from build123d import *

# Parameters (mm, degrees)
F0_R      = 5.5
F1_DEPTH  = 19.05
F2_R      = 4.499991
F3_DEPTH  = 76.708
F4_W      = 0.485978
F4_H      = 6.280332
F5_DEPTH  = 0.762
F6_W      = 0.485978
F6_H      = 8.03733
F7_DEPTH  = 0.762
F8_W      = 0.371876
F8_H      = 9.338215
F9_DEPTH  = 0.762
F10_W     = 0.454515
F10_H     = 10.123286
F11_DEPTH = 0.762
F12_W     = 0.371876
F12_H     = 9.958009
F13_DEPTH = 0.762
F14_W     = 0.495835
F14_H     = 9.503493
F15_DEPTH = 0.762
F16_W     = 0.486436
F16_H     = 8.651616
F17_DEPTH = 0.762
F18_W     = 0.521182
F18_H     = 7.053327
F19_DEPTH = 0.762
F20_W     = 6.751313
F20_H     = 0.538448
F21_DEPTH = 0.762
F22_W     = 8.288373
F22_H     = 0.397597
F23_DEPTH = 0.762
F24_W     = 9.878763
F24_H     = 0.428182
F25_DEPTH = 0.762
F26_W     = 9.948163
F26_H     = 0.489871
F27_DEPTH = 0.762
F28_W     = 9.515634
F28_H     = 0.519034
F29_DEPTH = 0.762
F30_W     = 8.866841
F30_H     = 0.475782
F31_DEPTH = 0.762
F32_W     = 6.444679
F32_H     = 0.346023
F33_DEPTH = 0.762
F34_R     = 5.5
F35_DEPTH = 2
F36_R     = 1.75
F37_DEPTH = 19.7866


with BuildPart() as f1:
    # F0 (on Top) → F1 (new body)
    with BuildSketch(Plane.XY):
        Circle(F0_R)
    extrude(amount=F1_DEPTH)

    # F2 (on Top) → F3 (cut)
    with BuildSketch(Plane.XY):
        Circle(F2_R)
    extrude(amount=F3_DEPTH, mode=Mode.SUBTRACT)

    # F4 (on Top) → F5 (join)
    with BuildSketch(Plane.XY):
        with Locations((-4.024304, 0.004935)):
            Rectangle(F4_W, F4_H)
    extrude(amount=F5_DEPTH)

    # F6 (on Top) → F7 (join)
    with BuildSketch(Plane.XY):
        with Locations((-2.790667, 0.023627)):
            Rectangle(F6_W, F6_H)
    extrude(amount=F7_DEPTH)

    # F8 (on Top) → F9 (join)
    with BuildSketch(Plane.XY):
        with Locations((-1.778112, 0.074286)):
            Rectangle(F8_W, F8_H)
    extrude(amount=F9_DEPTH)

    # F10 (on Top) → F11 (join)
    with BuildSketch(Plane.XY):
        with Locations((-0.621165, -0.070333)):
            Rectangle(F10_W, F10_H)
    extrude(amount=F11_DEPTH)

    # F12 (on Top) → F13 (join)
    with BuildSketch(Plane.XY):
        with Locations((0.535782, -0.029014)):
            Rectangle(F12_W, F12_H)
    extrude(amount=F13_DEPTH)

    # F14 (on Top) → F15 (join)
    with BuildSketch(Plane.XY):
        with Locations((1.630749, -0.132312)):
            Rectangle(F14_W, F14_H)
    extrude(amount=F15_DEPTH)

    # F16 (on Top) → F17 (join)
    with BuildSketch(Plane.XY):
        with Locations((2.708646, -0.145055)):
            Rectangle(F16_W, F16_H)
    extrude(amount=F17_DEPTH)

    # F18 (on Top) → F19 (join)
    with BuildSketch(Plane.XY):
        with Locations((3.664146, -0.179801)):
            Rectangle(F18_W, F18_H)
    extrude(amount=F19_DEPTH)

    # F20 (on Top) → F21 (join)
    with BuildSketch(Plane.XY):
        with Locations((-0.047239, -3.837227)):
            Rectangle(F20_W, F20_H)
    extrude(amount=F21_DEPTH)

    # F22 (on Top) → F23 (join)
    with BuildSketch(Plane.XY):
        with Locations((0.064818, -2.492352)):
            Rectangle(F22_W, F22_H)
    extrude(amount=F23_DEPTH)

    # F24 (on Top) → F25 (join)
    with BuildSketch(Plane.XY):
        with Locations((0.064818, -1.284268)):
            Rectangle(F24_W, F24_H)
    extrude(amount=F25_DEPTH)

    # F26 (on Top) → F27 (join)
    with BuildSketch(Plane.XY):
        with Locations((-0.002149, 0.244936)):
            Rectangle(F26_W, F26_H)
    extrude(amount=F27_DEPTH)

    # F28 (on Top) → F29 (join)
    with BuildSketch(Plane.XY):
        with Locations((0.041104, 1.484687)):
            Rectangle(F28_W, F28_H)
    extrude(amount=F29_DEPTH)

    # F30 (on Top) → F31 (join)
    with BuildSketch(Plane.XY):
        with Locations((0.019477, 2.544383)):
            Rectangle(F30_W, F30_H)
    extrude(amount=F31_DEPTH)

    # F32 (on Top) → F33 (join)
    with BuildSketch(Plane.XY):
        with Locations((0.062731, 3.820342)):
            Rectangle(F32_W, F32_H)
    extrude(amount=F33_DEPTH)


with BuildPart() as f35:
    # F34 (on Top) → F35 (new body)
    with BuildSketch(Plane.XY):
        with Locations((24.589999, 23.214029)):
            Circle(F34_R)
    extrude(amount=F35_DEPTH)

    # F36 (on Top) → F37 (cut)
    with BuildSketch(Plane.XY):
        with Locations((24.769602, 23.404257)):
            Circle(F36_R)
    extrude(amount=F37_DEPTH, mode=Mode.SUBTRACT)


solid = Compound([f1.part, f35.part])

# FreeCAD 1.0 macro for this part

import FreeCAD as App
import Part
import Sketcher
Q = App.Units.Quantity

doc = App.newDocument("Part")
body = doc.addObject("PartDesign::Body", "Body")

# Sketch on XY plane
sketch1 = body.newObject("Sketcher::SketchObject", "Sketch")
sketch1.AttachmentSupport = (doc.getObject("XY_Plane"), [""])
sketch1.MapMode = "FlatFace"
sketch1.addGeometry(Part.Circle(App.Vector(0, 0, 0), App.Vector(0, 0, 1), 6), False)
sketch1.addConstraint(Sketcher.Constraint("Coincident", 0, 3, -1, 1))
sketch1.addConstraint(Sketcher.Constraint("Diameter", 0, Q("11 mm")))
pad1 = body.newObject("PartDesign::Pad", "Pad")
pad1.Profile = sketch1
pad1.Length = Q("0.75 in")

# Sketch on XY plane
sketch2 = body.newObject("Sketcher::SketchObject", "Sketch001")
sketch2.AttachmentSupport = (doc.getObject("XY_Plane"), [""])
sketch2.MapMode = "FlatFace"
sketch2.addGeometry(Part.Circle(App.Vector(0, 0, 0), App.Vector(0, 0, 1), 4.5), False)
sketch2.addConstraint(Sketcher.Constraint("Coincident", 0, 3, -1, 1))
sketch2.addConstraint(Sketcher.Constraint("Diameter", 0, Q("8.999982 mm")))
pocket1 = body.newObject("PartDesign::Pocket", "Pocket")
pocket1.Profile = sketch2
pocket1.Length = Q("3.02 in")
pocket1.Reversed = True

# Sketch on XY plane
sketch3 = body.newObject("Sketcher::SketchObject", "Sketch002")
sketch3.AttachmentSupport = (doc.getObject("XY_Plane"), [""])
sketch3.MapMode = "FlatFace"
sketch3.addGeometry(Part.LineSegment(App.Vector(-4.27, 3.15, 0), App.Vector(-4.27, -3.14, 0)), False)
sketch3.addGeometry(Part.LineSegment(App.Vector(-4.27, -3.14, 0), App.Vector(-3.78, -3.14, 0)), False)
sketch3.addGeometry(Part.LineSegment(App.Vector(-3.78, -3.14, 0), App.Vector(-3.78, 3.15, 0)), False)
sketch3.addGeometry(Part.LineSegment(App.Vector(-3.78, 3.15, 0), App.Vector(-4.27, 3.15, 0)), False)
sketch3.addConstraint(Sketcher.Constraint("Coincident", 0, 2, 1, 1))
sketch3.addConstraint(Sketcher.Constraint("Coincident", 1, 2, 2, 1))
sketch3.addConstraint(Sketcher.Constraint("Coincident", 2, 2, 3, 1))
sketch3.addConstraint(Sketcher.Constraint("Coincident", 3, 2, 0, 1))
sketch3.addConstraint(Sketcher.Constraint("Vertical", 0))
sketch3.addConstraint(Sketcher.Constraint("Horizontal", 1))
sketch3.addConstraint(Sketcher.Constraint("Vertical", 2))
sketch3.addConstraint(Sketcher.Constraint("Horizontal", 3))
sketch3.addConstraint(Sketcher.Constraint("DistanceY", 0, 2, 0, 1, Q("6.280332 mm")))
sketch3.addConstraint(Sketcher.Constraint("DistanceY", -1, 1, 2, 2, Q("3.145101 mm")))
sketch3.addConstraint(Sketcher.Constraint("DistanceX", 1, 1, 1, 2, Q("0.485978 mm")))
sketch3.addConstraint(Sketcher.Constraint("DistanceX", 0, 2, -1, 1, Q("4.267293 mm")))
pad2 = body.newObject("PartDesign::Pad", "Pad001")
pad2.Profile = sketch3
pad2.Length = Q("0.03 in")

# Sketch on XY plane
sketch4 = body.newObject("Sketcher::SketchObject", "Sketch003")
sketch4.AttachmentSupport = (doc.getObject("XY_Plane"), [""])
sketch4.MapMode = "FlatFace"
sketch4.addGeometry(Part.LineSegment(App.Vector(-3.03, 4.04, 0), App.Vector(-3.03, -4, 0)), False)
sketch4.addGeometry(Part.LineSegment(App.Vector(-3.03, -4, 0), App.Vector(-2.55, -4, 0)), False)
sketch4.addGeometry(Part.LineSegment(App.Vector(-2.55, -4, 0), App.Vector(-2.55, 4.04, 0)), False)
sketch4.addGeometry(Part.LineSegment(App.Vector(-2.55, 4.04, 0), App.Vector(-3.03, 4.04, 0)), False)
sketch4.addConstraint(Sketcher.Constraint("Coincident", 0, 2, 1, 1))
sketch4.addConstraint(Sketcher.Constraint("Coincident", 1, 2, 2, 1))
sketch4.addConstraint(Sketcher.Constraint("Coincident", 2, 2, 3, 1))
sketch4.addConstraint(Sketcher.Constraint("Coincident", 3, 2, 0, 1))
sketch4.addConstraint(Sketcher.Constraint("Vertical", 0))
sketch4.addConstraint(Sketcher.Constraint("Horizontal", 1))
sketch4.addConstraint(Sketcher.Constraint("Vertical", 2))
sketch4.addConstraint(Sketcher.Constraint("Horizontal", 3))
sketch4.addConstraint(Sketcher.Constraint("DistanceX", 1, 1, 1, 2, Q("0.485978 mm")))
sketch4.addConstraint(Sketcher.Constraint("DistanceY", 0, 2, 0, 1, Q("8.03733 mm")))
sketch4.addConstraint(Sketcher.Constraint("DistanceY", 0, 2, -1, 1, Q("3.995038 mm")))
sketch4.addConstraint(Sketcher.Constraint("DistanceX", 0, 2, -1, 1, Q("3.033656 mm")))
pad3 = body.newObject("PartDesign::Pad", "Pad002")
pad3.Profile = sketch4
pad3.Length = Q("0.03 in")

# Sketch on XY plane
sketch5 = body.newObject("Sketcher::SketchObject", "Sketch004")
sketch5.AttachmentSupport = (doc.getObject("XY_Plane"), [""])
sketch5.MapMode = "FlatFace"
sketch5.addGeometry(Part.LineSegment(App.Vector(-1.96, 4.74, 0), App.Vector(-1.96, -4.59, 0)), False)
sketch5.addGeometry(Part.LineSegment(App.Vector(-1.96, -4.59, 0), App.Vector(-1.59, -4.59, 0)), False)
sketch5.addGeometry(Part.LineSegment(App.Vector(-1.59, -4.59, 0), App.Vector(-1.59, 4.74, 0)), False)
sketch5.addGeometry(Part.LineSegment(App.Vector(-1.59, 4.74, 0), App.Vector(-1.96, 4.74, 0)), False)
sketch5.addConstraint(Sketcher.Constraint("Coincident", 0, 2, 1, 1))
sketch5.addConstraint(Sketcher.Constraint("Coincident", 1, 2, 2, 1))
sketch5.addConstraint(Sketcher.Constraint("Coincident", 2, 2, 3, 1))
sketch5.addConstraint(Sketcher.Constraint("Coincident", 3, 2, 0, 1))
sketch5.addConstraint(Sketcher.Constraint("Vertical", 0))
sketch5.addConstraint(Sketcher.Constraint("Horizontal", 1))
sketch5.addConstraint(Sketcher.Constraint("Vertical", 2))
sketch5.addConstraint(Sketcher.Constraint("Horizontal", 3))
sketch5.addConstraint(Sketcher.Constraint("DistanceX", 1, 1, 1, 2, Q("0.371876 mm")))
sketch5.addConstraint(Sketcher.Constraint("DistanceY", 0, 2, 0, 1, Q("9.338215 mm")))
sketch5.addConstraint(Sketcher.Constraint("DistanceX", 0, 2, -1, 1, Q("1.96405 mm")))
sketch5.addConstraint(Sketcher.Constraint("DistanceY", 0, 2, -1, 1, Q("4.594822 mm")))
pad4 = body.newObject("PartDesign::Pad", "Pad003")
pad4.Profile = sketch5
pad4.Length = Q("0.03 in")

# Sketch on XY plane
sketch6 = body.newObject("Sketcher::SketchObject", "Sketch005")
sketch6.AttachmentSupport = (doc.getObject("XY_Plane"), [""])
sketch6.MapMode = "FlatFace"
sketch6.addGeometry(Part.LineSegment(App.Vector(-0.85, 4.99, 0), App.Vector(-0.85, -5.13, 0)), False)
sketch6.addGeometry(Part.LineSegment(App.Vector(-0.85, -5.13, 0), App.Vector(-0.39, -5.13, 0)), False)
sketch6.addGeometry(Part.LineSegment(App.Vector(-0.39, -5.13, 0), App.Vector(-0.39, 4.99, 0)), False)
sketch6.addGeometry(Part.LineSegment(App.Vector(-0.39, 4.99, 0), App.Vector(-0.85, 4.99, 0)), False)
sketch6.addConstraint(Sketcher.Constraint("Coincident", 0, 2, 1, 1))
sketch6.addConstraint(Sketcher.Constraint("Coincident", 1, 2, 2, 1))
sketch6.addConstraint(Sketcher.Constraint("Coincident", 2, 2, 3, 1))
sketch6.addConstraint(Sketcher.Constraint("Coincident", 3, 2, 0, 1))
sketch6.addConstraint(Sketcher.Constraint("Vertical", 0))
sketch6.addConstraint(Sketcher.Constraint("Horizontal", 1))
sketch6.addConstraint(Sketcher.Constraint("Vertical", 2))
sketch6.addConstraint(Sketcher.Constraint("Horizontal", 3))
sketch6.addConstraint(Sketcher.Constraint("DistanceX", 1, 1, 1, 2, Q("0.454515 mm")))
sketch6.addConstraint(Sketcher.Constraint("DistanceY", 0, 2, 0, 1, Q("10.123286 mm")))
sketch6.addConstraint(Sketcher.Constraint("DistanceY", -1, 1, 2, 2, Q("4.99131 mm")))
sketch6.addConstraint(Sketcher.Constraint("DistanceX", 0, 2, -1, 1, Q("0.848422 mm")))
pad5 = body.newObject("PartDesign::Pad", "Pad004")
pad5.Profile = sketch6
pad5.Length = Q("0.03 in")

# Sketch on XY plane
sketch7 = body.newObject("Sketcher::SketchObject", "Sketch006")
sketch7.AttachmentSupport = (doc.getObject("XY_Plane"), [""])
sketch7.MapMode = "FlatFace"
sketch7.addGeometry(Part.LineSegment(App.Vector(0.35, 4.95, 0), App.Vector(0.35, -5.01, 0)), False)
sketch7.addGeometry(Part.LineSegment(App.Vector(0.35, -5.01, 0), App.Vector(0.72, -5.01, 0)), False)
sketch7.addGeometry(Part.LineSegment(App.Vector(0.72, -5.01, 0), App.Vector(0.72, 4.95, 0)), False)
sketch7.addGeometry(Part.LineSegment(App.Vector(0.72, 4.95, 0), App.Vector(0.35, 4.95, 0)), False)
sketch7.addConstraint(Sketcher.Constraint("Coincident", 0, 2, 1, 1))
sketch7.addConstraint(Sketcher.Constraint("Coincident", 1, 2, 2, 1))
sketch7.addConstraint(Sketcher.Constraint("Coincident", 2, 2, 3, 1))
sketch7.addConstraint(Sketcher.Constraint("Coincident", 3, 2, 0, 1))
sketch7.addConstraint(Sketcher.Constraint("Vertical", 0))
sketch7.addConstraint(Sketcher.Constraint("Horizontal", 1))
sketch7.addConstraint(Sketcher.Constraint("Vertical", 2))
sketch7.addConstraint(Sketcher.Constraint("Horizontal", 3))
sketch7.addConstraint(Sketcher.Constraint("DistanceY", 0, 2, 0, 1, Q("9.958009 mm")))
sketch7.addConstraint(Sketcher.Constraint("DistanceX", 1, 1, 1, 2, Q("0.371876 mm")))
sketch7.addConstraint(Sketcher.Constraint("DistanceY", 0, 2, -1, 1, Q("5.008019 mm")))
sketch7.addConstraint(Sketcher.Constraint("DistanceX", -1, 1, 1, 2, Q("0.72172 mm")))
pad6 = body.newObject("PartDesign::Pad", "Pad005")
pad6.Profile = sketch7
pad6.Length = Q("0.03 in")

# Sketch on XY plane
sketch8 = body.newObject("Sketcher::SketchObject", "Sketch007")
sketch8.AttachmentSupport = (doc.getObject("XY_Plane"), [""])
sketch8.MapMode = "FlatFace"
sketch8.addGeometry(Part.LineSegment(App.Vector(1.38, 4.62, 0), App.Vector(1.38, -4.88, 0)), False)
sketch8.addGeometry(Part.LineSegment(App.Vector(1.38, -4.88, 0), App.Vector(1.88, -4.88, 0)), False)
sketch8.addGeometry(Part.LineSegment(App.Vector(1.88, -4.88, 0), App.Vector(1.88, 4.62, 0)), False)
sketch8.addGeometry(Part.LineSegment(App.Vector(1.88, 4.62, 0), App.Vector(1.38, 4.62, 0)), False)
sketch8.addConstraint(Sketcher.Constraint("Coincident", 0, 2, 1, 1))
sketch8.addConstraint(Sketcher.Constraint("Coincident", 1, 2, 2, 1))
sketch8.addConstraint(Sketcher.Constraint("Coincident", 2, 2, 3, 1))
sketch8.addConstraint(Sketcher.Constraint("Coincident", 3, 2, 0, 1))
sketch8.addConstraint(Sketcher.Constraint("Vertical", 0))
sketch8.addConstraint(Sketcher.Constraint("Horizontal", 1))
sketch8.addConstraint(Sketcher.Constraint("Vertical", 2))
sketch8.addConstraint(Sketcher.Constraint("Horizontal", 3))
sketch8.addConstraint(Sketcher.Constraint("DistanceX", 1, 1, 1, 2, Q("0.495835 mm")))
sketch8.addConstraint(Sketcher.Constraint("DistanceY", 0, 2, 0, 1, Q("9.503493 mm")))
sketch8.addConstraint(Sketcher.Constraint("DistanceX", -1, 1, 0, 2, Q("1.382831 mm")))
sketch8.addConstraint(Sketcher.Constraint("DistanceY", 0, 2, -1, 1, Q("4.884059 mm")))
pad7 = body.newObject("PartDesign::Pad", "Pad006")
pad7.Profile = sketch8
pad7.Length = Q("0.03 in")

# Sketch on XY plane
sketch9 = body.newObject("Sketcher::SketchObject", "Sketch008")
sketch9.AttachmentSupport = (doc.getObject("XY_Plane"), [""])
sketch9.MapMode = "FlatFace"
sketch9.addGeometry(Part.LineSegment(App.Vector(2.47, 4.18, 0), App.Vector(2.47, -4.47, 0)), False)
sketch9.addGeometry(Part.LineSegment(App.Vector(2.47, -4.47, 0), App.Vector(2.95, -4.47, 0)), False)
sketch9.addGeometry(Part.LineSegment(App.Vector(2.95, -4.47, 0), App.Vector(2.95, 4.18, 0)), False)
sketch9.addGeometry(Part.LineSegment(App.Vector(2.95, 4.18, 0), App.Vector(2.47, 4.18, 0)), False)
sketch9.addConstraint(Sketcher.Constraint("Coincident", 0, 2, 1, 1))
sketch9.addConstraint(Sketcher.Constraint("Coincident", 1, 2, 2, 1))
sketch9.addConstraint(Sketcher.Constraint("Coincident", 2, 2, 3, 1))
sketch9.addConstraint(Sketcher.Constraint("Coincident", 3, 2, 0, 1))
sketch9.addConstraint(Sketcher.Constraint("Vertical", 0))
sketch9.addConstraint(Sketcher.Constraint("Horizontal", 1))
sketch9.addConstraint(Sketcher.Constraint("Vertical", 2))
sketch9.addConstraint(Sketcher.Constraint("Horizontal", 3))
sketch9.addConstraint(Sketcher.Constraint("DistanceX", 1, 1, 1, 2, Q("0.486436 mm")))
sketch9.addConstraint(Sketcher.Constraint("DistanceY", 0, 2, 0, 1, Q("8.651616 mm")))
sketch9.addConstraint(Sketcher.Constraint("DistanceX", -1, 1, 0, 2, Q("2.465428 mm")))
sketch9.addConstraint(Sketcher.Constraint("DistanceY", 0, 2, -1, 1, Q("4.470863 mm")))
pad8 = body.newObject("PartDesign::Pad", "Pad007")
pad8.Profile = sketch9
pad8.Length = Q("0.03 in")

# Sketch on XY plane
sketch10 = body.newObject("Sketcher::SketchObject", "Sketch009")
sketch10.AttachmentSupport = (doc.getObject("XY_Plane"), [""])
sketch10.MapMode = "FlatFace"
sketch10.addGeometry(Part.LineSegment(App.Vector(3.4, 3.3, 0), App.Vector(3.4, -3.7, 0)), False)
sketch10.addGeometry(Part.LineSegment(App.Vector(3.4, -3.7, 0), App.Vector(3.9, -3.7, 0)), False)
sketch10.addGeometry(Part.LineSegment(App.Vector(3.9, -3.7, 0), App.Vector(3.9, 3.3, 0)), False)
sketch10.addGeometry(Part.LineSegment(App.Vector(3.9, 3.3, 0), App.Vector(3.4, 3.3, 0)), False)
sketch10.addConstraint(Sketcher.Constraint("Coincident", 0, 2, 1, 1))
sketch10.addConstraint(Sketcher.Constraint("Coincident", 1, 2, 2, 1))
sketch10.addConstraint(Sketcher.Constraint("Coincident", 2, 2, 3, 1))
sketch10.addConstraint(Sketcher.Constraint("Coincident", 3, 2, 0, 1))
sketch10.addConstraint(Sketcher.Constraint("Vertical", 0))
sketch10.addConstraint(Sketcher.Constraint("Horizontal", 1))
sketch10.addConstraint(Sketcher.Constraint("Vertical", 2))
sketch10.addConstraint(Sketcher.Constraint("Horizontal", 3))
sketch10.addConstraint(Sketcher.Constraint("DistanceX", 1, 1, 1, 2, Q("0.521182 mm")))
sketch10.addConstraint(Sketcher.Constraint("DistanceY", 0, 2, 0, 1, Q("7.053327 mm")))
sketch10.addConstraint(Sketcher.Constraint("DistanceX", -1, 1, 0, 2, Q("3.403555 mm")))
sketch10.addConstraint(Sketcher.Constraint("DistanceY", 0, 2, -1, 1, Q("3.706465 mm")))
pad9 = body.newObject("PartDesign::Pad", "Pad008")
pad9.Profile = sketch10
pad9.Length = Q("0.03 in")

# Sketch on XY plane
sketch11 = body.newObject("Sketcher::SketchObject", "Sketch010")
sketch11.AttachmentSupport = (doc.getObject("XY_Plane"), [""])
sketch11.MapMode = "FlatFace"
sketch11.addGeometry(Part.LineSegment(App.Vector(-3.4, -3.6, 0), App.Vector(-3.4, -4.1, 0)), False)
sketch11.addGeometry(Part.LineSegment(App.Vector(-3.4, -4.1, 0), App.Vector(3.3, -4.1, 0)), False)
sketch11.addGeometry(Part.LineSegment(App.Vector(3.3, -4.1, 0), App.Vector(3.3, -3.6, 0)), False)
sketch11.addGeometry(Part.LineSegment(App.Vector(3.3, -3.6, 0), App.Vector(-3.4, -3.6, 0)), False)
sketch11.addConstraint(Sketcher.Constraint("Coincident", 0, 2, 1, 1))
sketch11.addConstraint(Sketcher.Constraint("Coincident", 1, 2, 2, 1))
sketch11.addConstraint(Sketcher.Constraint("Coincident", 2, 2, 3, 1))
sketch11.addConstraint(Sketcher.Constraint("Coincident", 3, 2, 0, 1))
sketch11.addConstraint(Sketcher.Constraint("Vertical", 0))
sketch11.addConstraint(Sketcher.Constraint("Horizontal", 1))
sketch11.addConstraint(Sketcher.Constraint("Vertical", 2))
sketch11.addConstraint(Sketcher.Constraint("Horizontal", 3))
sketch11.addConstraint(Sketcher.Constraint("DistanceX", 1, 1, 1, 2, Q("6.751313 mm")))
sketch11.addConstraint(Sketcher.Constraint("DistanceY", 0, 2, 0, 1, Q("0.538448 mm")))
sketch11.addConstraint(Sketcher.Constraint("DistanceY", 0, 2, -1, 1, Q("4.106451 mm")))
sketch11.addConstraint(Sketcher.Constraint("DistanceX", 0, 2, -1, 1, Q("3.422896 mm")))
pad10 = body.newObject("PartDesign::Pad", "Pad009")
pad10.Profile = sketch11
pad10.Length = Q("0.03 in")

# Sketch on XY plane
sketch12 = body.newObject("Sketcher::SketchObject", "Sketch011")
sketch12.AttachmentSupport = (doc.getObject("XY_Plane"), [""])
sketch12.MapMode = "FlatFace"
sketch12.addGeometry(Part.LineSegment(App.Vector(-4.08, -2.29, 0), App.Vector(-4.08, -2.69, 0)), False)
sketch12.addGeometry(Part.LineSegment(App.Vector(-4.08, -2.69, 0), App.Vector(4.21, -2.69, 0)), False)
sketch12.addGeometry(Part.LineSegment(App.Vector(4.21, -2.69, 0), App.Vector(4.21, -2.29, 0)), False)
sketch12.addGeometry(Part.LineSegment(App.Vector(4.21, -2.29, 0), App.Vector(-4.08, -2.29, 0)), False)
sketch12.addConstraint(Sketcher.Constraint("Coincident", 0, 2, 1, 1))
sketch12.addConstraint(Sketcher.Constraint("Coincident", 1, 2, 2, 1))
sketch12.addConstraint(Sketcher.Constraint("Coincident", 2, 2, 3, 1))
sketch12.addConstraint(Sketcher.Constraint("Coincident", 3, 2, 0, 1))
sketch12.addConstraint(Sketcher.Constraint("Vertical", 0))
sketch12.addConstraint(Sketcher.Constraint("Horizontal", 1))
sketch12.addConstraint(Sketcher.Constraint("Vertical", 2))
sketch12.addConstraint(Sketcher.Constraint("Horizontal", 3))
sketch12.addConstraint(Sketcher.Constraint("DistanceX", 1, 1, 1, 2, Q("8.288373 mm")))
sketch12.addConstraint(Sketcher.Constraint("DistanceY", 0, 2, 0, 1, Q("0.397597 mm")))
sketch12.addConstraint(Sketcher.Constraint("DistanceX", 0, 2, -1, 1, Q("4.079369 mm")))
sketch12.addConstraint(Sketcher.Constraint("DistanceY", 0, 2, -1, 1, Q("2.691151 mm")))
pad11 = body.newObject("PartDesign::Pad", "Pad010")
pad11.Profile = sketch12
pad11.Length = Q("0.03 in")

# Sketch on XY plane
sketch13 = body.newObject("Sketcher::SketchObject", "Sketch012")
sketch13.AttachmentSupport = (doc.getObject("XY_Plane"), [""])
sketch13.MapMode = "FlatFace"
sketch13.addGeometry(Part.LineSegment(App.Vector(-4.87, -1.07, 0), App.Vector(-4.87, -1.5, 0)), False)
sketch13.addGeometry(Part.LineSegment(App.Vector(-4.87, -1.5, 0), App.Vector(5, -1.5, 0)), False)
sketch13.addGeometry(Part.LineSegment(App.Vector(5, -1.5, 0), App.Vector(5, -1.07, 0)), False)
sketch13.addGeometry(Part.LineSegment(App.Vector(5, -1.07, 0), App.Vector(-4.87, -1.07, 0)), False)
sketch13.addConstraint(Sketcher.Constraint("Coincident", 0, 2, 1, 1))
sketch13.addConstraint(Sketcher.Constraint("Coincident", 1, 2, 2, 1))
sketch13.addConstraint(Sketcher.Constraint("Coincident", 2, 2, 3, 1))
sketch13.addConstraint(Sketcher.Constraint("Coincident", 3, 2, 0, 1))
sketch13.addConstraint(Sketcher.Constraint("Vertical", 0))
sketch13.addConstraint(Sketcher.Constraint("Horizontal", 1))
sketch13.addConstraint(Sketcher.Constraint("Vertical", 2))
sketch13.addConstraint(Sketcher.Constraint("Horizontal", 3))
sketch13.addConstraint(Sketcher.Constraint("DistanceX", -1, 1, 1, 2, Q("5.0042 mm")))
sketch13.addConstraint(Sketcher.Constraint("DistanceX", 1, 1, 1, 2, Q("9.878763 mm")))
sketch13.addConstraint(Sketcher.Constraint("DistanceY", 0, 2, 0, 1, Q("0.428182 mm")))
sketch13.addConstraint(Sketcher.Constraint("DistanceY", 0, 2, -1, 1, Q("1.498359 mm")))
pad12 = body.newObject("PartDesign::Pad", "Pad011")
pad12.Profile = sketch13
pad12.Length = Q("0.03 in")

# Sketch on XY plane
sketch14 = body.newObject("Sketcher::SketchObject", "Sketch013")
sketch14.AttachmentSupport = (doc.getObject("XY_Plane"), [""])
sketch14.MapMode = "FlatFace"
sketch14.addGeometry(Part.LineSegment(App.Vector(-4.98, 0.49, 0), App.Vector(-4.98, 0, 0)), False)
sketch14.addGeometry(Part.LineSegment(App.Vector(-4.98, 0, 0), App.Vector(4.97, 0, 0)), False)
sketch14.addGeometry(Part.LineSegment(App.Vector(4.97, 0, 0), App.Vector(4.97, 0.49, 0)), False)
sketch14.addGeometry(Part.LineSegment(App.Vector(4.97, 0.49, 0), App.Vector(-4.98, 0.49, 0)), False)
sketch14.addConstraint(Sketcher.Constraint("Coincident", 0, 2, 1, 1))
sketch14.addConstraint(Sketcher.Constraint("Coincident", 1, 2, 2, 1))
sketch14.addConstraint(Sketcher.Constraint("Coincident", 2, 2, 3, 1))
sketch14.addConstraint(Sketcher.Constraint("Coincident", 3, 2, 0, 1))
sketch14.addConstraint(Sketcher.Constraint("Vertical", 0))
sketch14.addConstraint(Sketcher.Constraint("Horizontal", 1))
sketch14.addConstraint(Sketcher.Constraint("Vertical", 2))
sketch14.addConstraint(Sketcher.Constraint("Horizontal", 3))
sketch14.addConstraint(Sketcher.Constraint("PointOnObject", 0, 2, -1))
sketch14.addConstraint(Sketcher.Constraint("DistanceY", 0, 2, 0, 1, Q("0.489871 mm")))
sketch14.addConstraint(Sketcher.Constraint("DistanceX", 1, 1, 1, 2, Q("9.948163 mm")))
sketch14.addConstraint(Sketcher.Constraint("DistanceX", 0, 2, -1, 1, Q("4.97623 mm")))
pad13 = body.newObject("PartDesign::Pad", "Pad012")
pad13.Profile = sketch14
pad13.Length = Q("0.03 in")

# Sketch on XY plane
sketch15 = body.newObject("Sketcher::SketchObject", "Sketch014")
sketch15.AttachmentSupport = (doc.getObject("XY_Plane"), [""])
sketch15.MapMode = "FlatFace"
sketch15.addGeometry(Part.LineSegment(App.Vector(-4.7, 1.7, 0), App.Vector(-4.7, 1.2, 0)), False)
sketch15.addGeometry(Part.LineSegment(App.Vector(-4.7, 1.2, 0), App.Vector(4.8, 1.2, 0)), False)
sketch15.addGeometry(Part.LineSegment(App.Vector(4.8, 1.2, 0), App.Vector(4.8, 1.7, 0)), False)
sketch15.addGeometry(Part.LineSegment(App.Vector(4.8, 1.7, 0), App.Vector(-4.7, 1.7, 0)), False)
sketch15.addConstraint(Sketcher.Constraint("Coincident", 0, 2, 1, 1))
sketch15.addConstraint(Sketcher.Constraint("Coincident", 1, 2, 2, 1))
sketch15.addConstraint(Sketcher.Constraint("Coincident", 2, 2, 3, 1))
sketch15.addConstraint(Sketcher.Constraint("Coincident", 3, 2, 0, 1))
sketch15.addConstraint(Sketcher.Constraint("Vertical", 0))
sketch15.addConstraint(Sketcher.Constraint("Horizontal", 1))
sketch15.addConstraint(Sketcher.Constraint("Vertical", 2))
sketch15.addConstraint(Sketcher.Constraint("Horizontal", 3))
sketch15.addConstraint(Sketcher.Constraint("DistanceX", 1, 1, 1, 2, Q("9.515634 mm")))
sketch15.addConstraint(Sketcher.Constraint("DistanceY", 0, 2, 0, 1, Q("0.519034 mm")))
sketch15.addConstraint(Sketcher.Constraint("DistanceY", -1, 1, 0, 2, Q("1.22517 mm")))
sketch15.addConstraint(Sketcher.Constraint("DistanceX", -1, 1, 1, 2, Q("4.798921 mm")))
pad14 = body.newObject("PartDesign::Pad", "Pad013")
pad14.Profile = sketch15
pad14.Length = Q("0.03 in")

# Sketch on XY plane
sketch16 = body.newObject("Sketcher::SketchObject", "Sketch015")
sketch16.AttachmentSupport = (doc.getObject("XY_Plane"), [""])
sketch16.MapMode = "FlatFace"
sketch16.addGeometry(Part.LineSegment(App.Vector(-4.41, 2.78, 0), App.Vector(-4.41, 2.31, 0)), False)
sketch16.addGeometry(Part.LineSegment(App.Vector(-4.41, 2.31, 0), App.Vector(4.45, 2.31, 0)), False)
sketch16.addGeometry(Part.LineSegment(App.Vector(4.45, 2.31, 0), App.Vector(4.45, 2.78, 0)), False)
sketch16.addGeometry(Part.LineSegment(App.Vector(4.45, 2.78, 0), App.Vector(-4.41, 2.78, 0)), False)
sketch16.addConstraint(Sketcher.Constraint("Coincident", 0, 2, 1, 1))
sketch16.addConstraint(Sketcher.Constraint("Coincident", 1, 2, 2, 1))
sketch16.addConstraint(Sketcher.Constraint("Coincident", 2, 2, 3, 1))
sketch16.addConstraint(Sketcher.Constraint("Coincident", 3, 2, 0, 1))
sketch16.addConstraint(Sketcher.Constraint("Vertical", 0))
sketch16.addConstraint(Sketcher.Constraint("Horizontal", 1))
sketch16.addConstraint(Sketcher.Constraint("Vertical", 2))
sketch16.addConstraint(Sketcher.Constraint("Horizontal", 3))
sketch16.addConstraint(Sketcher.Constraint("DistanceX", 1, 1, 1, 2, Q("8.866841 mm")))
sketch16.addConstraint(Sketcher.Constraint("DistanceY", 0, 2, 0, 1, Q("0.475782 mm")))
sketch16.addConstraint(Sketcher.Constraint("DistanceY", -1, 1, 0, 2, Q("2.306492 mm")))
sketch16.addConstraint(Sketcher.Constraint("DistanceX", 0, 2, -1, 1, Q("4.413944 mm")))
pad15 = body.newObject("PartDesign::Pad", "Pad014")
pad15.Profile = sketch16
pad15.Length = Q("0.03 in")

# Sketch on XY plane
sketch17 = body.newObject("Sketcher::SketchObject", "Sketch016")
sketch17.AttachmentSupport = (doc.getObject("XY_Plane"), [""])
sketch17.MapMode = "FlatFace"
sketch17.addGeometry(Part.LineSegment(App.Vector(-3.16, 3.99, 0), App.Vector(-3.16, 3.65, 0)), False)
sketch17.addGeometry(Part.LineSegment(App.Vector(-3.16, 3.65, 0), App.Vector(3.29, 3.65, 0)), False)
sketch17.addGeometry(Part.LineSegment(App.Vector(3.29, 3.65, 0), App.Vector(3.29, 3.99, 0)), False)
sketch17.addGeometry(Part.LineSegment(App.Vector(3.29, 3.99, 0), App.Vector(-3.16, 3.99, 0)), False)
sketch17.addConstraint(Sketcher.Constraint("Coincident", 0, 2, 1, 1))
sketch17.addConstraint(Sketcher.Constraint("Coincident", 1, 2, 2, 1))
sketch17.addConstraint(Sketcher.Constraint("Coincident", 2, 2, 3, 1))
sketch17.addConstraint(Sketcher.Constraint("Coincident", 3, 2, 0, 1))
sketch17.addConstraint(Sketcher.Constraint("Vertical", 0))
sketch17.addConstraint(Sketcher.Constraint("Horizontal", 1))
sketch17.addConstraint(Sketcher.Constraint("Vertical", 2))
sketch17.addConstraint(Sketcher.Constraint("Horizontal", 3))
sketch17.addConstraint(Sketcher.Constraint("DistanceX", 1, 1, 1, 2, Q("6.444679 mm")))
sketch17.addConstraint(Sketcher.Constraint("DistanceY", 0, 2, 0, 1, Q("0.346023 mm")))
sketch17.addConstraint(Sketcher.Constraint("DistanceX", 0, 2, -1, 1, Q("3.159609 mm")))
sketch17.addConstraint(Sketcher.Constraint("DistanceY", -1, 1, 0, 2, Q("3.64733 mm")))
pad16 = body.newObject("PartDesign::Pad", "Pad015")
pad16.Profile = sketch17
pad16.Length = Q("0.03 in")
body2 = doc.addObject("PartDesign::Body", "Body001")

# Sketch on XY plane
sketch18 = body2.newObject("Sketcher::SketchObject", "Sketch017")
sketch18.AttachmentSupport = (doc.getObject("XY_Plane001"), [""])
sketch18.MapMode = "FlatFace"
sketch18.addGeometry(Part.Circle(App.Vector(25, 23, 0), App.Vector(0, 0, 1), 6), False)
sketch18.addConstraint(Sketcher.Constraint("Diameter", 0, Q("11 mm")))
sketch18.addConstraint(Sketcher.Constraint("DistanceX", -1, 1, 0, 3, Q("24.589999 mm")))
sketch18.addConstraint(Sketcher.Constraint("DistanceY", -1, 1, 0, 3, Q("23.214029 mm")))
pad17 = body2.newObject("PartDesign::Pad", "Pad016")
pad17.Profile = sketch18
pad17.Length = 2

# Sketch on XY plane
sketch19 = body2.newObject("Sketcher::SketchObject", "Sketch018")
sketch19.AttachmentSupport = (doc.getObject("XY_Plane001"), [""])
sketch19.MapMode = "FlatFace"
sketch19.addGeometry(Part.Circle(App.Vector(24.8, 23.4, 0), App.Vector(0, 0, 1), 1.8), False)
sketch19.addConstraint(Sketcher.Constraint("Diameter", 0, Q("3.5 mm")))
sketch19.addConstraint(Sketcher.Constraint("DistanceX", -1, 1, 0, 3, Q("24.769602 mm")))
sketch19.addConstraint(Sketcher.Constraint("DistanceY", -1, 1, 0, 3, Q("23.404257 mm")))
pocket2 = body2.newObject("PartDesign::Pocket", "Pocket001")
pocket2.Profile = sketch19
pocket2.Length = Q("0.779 in")
pocket2.Reversed = True

doc.recompute()
